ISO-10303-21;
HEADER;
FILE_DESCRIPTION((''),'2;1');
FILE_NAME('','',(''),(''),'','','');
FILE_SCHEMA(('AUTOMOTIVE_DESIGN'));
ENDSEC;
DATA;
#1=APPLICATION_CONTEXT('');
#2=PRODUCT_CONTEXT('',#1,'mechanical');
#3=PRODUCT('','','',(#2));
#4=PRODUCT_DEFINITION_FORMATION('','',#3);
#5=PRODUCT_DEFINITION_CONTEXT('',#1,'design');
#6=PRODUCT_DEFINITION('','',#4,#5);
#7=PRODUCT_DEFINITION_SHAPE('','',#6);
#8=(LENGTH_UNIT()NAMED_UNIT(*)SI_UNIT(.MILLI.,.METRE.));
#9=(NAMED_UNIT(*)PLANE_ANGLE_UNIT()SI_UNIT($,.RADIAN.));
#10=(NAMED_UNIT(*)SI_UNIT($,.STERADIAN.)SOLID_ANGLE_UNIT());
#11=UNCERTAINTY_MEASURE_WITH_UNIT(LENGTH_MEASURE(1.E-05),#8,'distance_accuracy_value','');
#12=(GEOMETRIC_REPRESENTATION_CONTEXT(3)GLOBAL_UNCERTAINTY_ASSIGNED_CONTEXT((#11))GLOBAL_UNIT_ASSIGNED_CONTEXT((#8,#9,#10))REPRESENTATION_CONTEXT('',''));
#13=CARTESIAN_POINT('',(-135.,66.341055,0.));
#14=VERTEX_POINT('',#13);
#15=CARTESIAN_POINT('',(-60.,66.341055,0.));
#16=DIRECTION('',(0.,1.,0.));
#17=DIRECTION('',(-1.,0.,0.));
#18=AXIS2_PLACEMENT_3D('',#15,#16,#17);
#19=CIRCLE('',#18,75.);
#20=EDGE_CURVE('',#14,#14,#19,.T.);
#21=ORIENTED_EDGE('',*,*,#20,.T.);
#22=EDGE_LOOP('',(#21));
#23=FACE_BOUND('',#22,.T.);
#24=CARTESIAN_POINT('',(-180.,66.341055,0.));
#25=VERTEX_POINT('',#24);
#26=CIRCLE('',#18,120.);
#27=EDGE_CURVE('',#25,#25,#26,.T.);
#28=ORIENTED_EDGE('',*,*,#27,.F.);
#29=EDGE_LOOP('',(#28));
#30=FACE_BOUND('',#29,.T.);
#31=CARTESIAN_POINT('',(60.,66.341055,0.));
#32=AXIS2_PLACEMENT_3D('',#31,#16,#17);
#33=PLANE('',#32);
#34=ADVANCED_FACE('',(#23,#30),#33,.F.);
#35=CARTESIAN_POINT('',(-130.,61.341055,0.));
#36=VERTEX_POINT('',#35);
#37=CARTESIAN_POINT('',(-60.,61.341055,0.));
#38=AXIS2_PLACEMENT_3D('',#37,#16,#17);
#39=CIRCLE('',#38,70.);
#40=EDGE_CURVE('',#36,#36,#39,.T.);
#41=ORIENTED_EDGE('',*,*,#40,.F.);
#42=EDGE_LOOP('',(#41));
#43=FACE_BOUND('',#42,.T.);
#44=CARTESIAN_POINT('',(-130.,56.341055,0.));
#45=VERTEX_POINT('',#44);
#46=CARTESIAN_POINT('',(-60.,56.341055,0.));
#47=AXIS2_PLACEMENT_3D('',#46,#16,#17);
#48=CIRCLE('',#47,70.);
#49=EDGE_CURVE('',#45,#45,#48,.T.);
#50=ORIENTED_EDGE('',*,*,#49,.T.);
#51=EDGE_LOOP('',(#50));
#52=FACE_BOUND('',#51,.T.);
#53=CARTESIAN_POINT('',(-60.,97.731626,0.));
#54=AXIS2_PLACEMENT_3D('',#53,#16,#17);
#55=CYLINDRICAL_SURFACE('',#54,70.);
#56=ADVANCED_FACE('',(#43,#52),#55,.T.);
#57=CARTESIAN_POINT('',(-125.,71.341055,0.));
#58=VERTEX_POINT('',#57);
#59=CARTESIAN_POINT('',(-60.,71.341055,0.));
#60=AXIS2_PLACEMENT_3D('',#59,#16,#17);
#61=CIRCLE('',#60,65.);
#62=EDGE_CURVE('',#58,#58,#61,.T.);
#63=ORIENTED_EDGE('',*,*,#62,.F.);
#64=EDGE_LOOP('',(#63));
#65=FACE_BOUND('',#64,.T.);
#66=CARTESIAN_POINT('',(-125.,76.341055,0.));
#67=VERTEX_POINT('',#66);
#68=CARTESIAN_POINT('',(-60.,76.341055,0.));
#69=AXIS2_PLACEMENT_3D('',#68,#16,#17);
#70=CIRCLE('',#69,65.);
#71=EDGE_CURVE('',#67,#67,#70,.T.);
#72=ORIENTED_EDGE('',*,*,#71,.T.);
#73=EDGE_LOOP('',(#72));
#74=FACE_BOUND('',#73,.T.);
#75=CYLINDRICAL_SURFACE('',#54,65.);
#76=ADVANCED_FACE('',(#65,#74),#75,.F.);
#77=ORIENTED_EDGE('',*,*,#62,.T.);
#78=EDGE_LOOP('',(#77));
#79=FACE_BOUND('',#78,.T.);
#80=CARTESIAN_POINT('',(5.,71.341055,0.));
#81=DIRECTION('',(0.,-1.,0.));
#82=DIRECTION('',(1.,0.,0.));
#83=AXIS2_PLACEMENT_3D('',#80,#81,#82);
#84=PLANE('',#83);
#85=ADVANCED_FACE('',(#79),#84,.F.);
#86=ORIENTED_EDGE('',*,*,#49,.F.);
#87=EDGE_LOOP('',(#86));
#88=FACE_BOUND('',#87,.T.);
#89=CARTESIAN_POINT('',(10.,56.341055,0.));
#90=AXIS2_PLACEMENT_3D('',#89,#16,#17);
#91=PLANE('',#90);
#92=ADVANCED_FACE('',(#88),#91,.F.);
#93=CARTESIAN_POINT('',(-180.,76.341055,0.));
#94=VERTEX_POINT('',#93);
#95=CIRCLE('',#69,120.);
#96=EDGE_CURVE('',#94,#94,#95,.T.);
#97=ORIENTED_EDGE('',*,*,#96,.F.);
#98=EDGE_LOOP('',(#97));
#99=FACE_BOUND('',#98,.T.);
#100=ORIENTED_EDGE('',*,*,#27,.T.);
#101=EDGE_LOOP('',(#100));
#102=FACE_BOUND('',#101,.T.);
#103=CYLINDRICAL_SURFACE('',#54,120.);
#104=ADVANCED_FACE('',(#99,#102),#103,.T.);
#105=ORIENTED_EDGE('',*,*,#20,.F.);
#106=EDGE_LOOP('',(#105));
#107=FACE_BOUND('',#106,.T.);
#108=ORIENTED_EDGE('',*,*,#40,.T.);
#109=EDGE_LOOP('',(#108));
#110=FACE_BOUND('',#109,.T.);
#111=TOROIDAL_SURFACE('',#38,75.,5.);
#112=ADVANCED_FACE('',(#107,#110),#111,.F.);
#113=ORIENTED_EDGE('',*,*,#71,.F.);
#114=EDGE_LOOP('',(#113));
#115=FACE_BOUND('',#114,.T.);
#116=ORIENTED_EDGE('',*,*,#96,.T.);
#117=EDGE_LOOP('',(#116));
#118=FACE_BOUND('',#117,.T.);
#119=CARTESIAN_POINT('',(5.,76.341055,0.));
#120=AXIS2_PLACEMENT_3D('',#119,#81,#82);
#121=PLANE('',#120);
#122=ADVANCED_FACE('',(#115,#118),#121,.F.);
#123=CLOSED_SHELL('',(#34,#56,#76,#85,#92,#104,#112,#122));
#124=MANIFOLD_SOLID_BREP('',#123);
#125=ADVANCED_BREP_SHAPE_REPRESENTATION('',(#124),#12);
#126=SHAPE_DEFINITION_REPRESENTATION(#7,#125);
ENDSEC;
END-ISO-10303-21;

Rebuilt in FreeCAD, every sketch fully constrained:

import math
import FreeCAD as App
import Part
import Sketcher
Q = App.Units.Quantity

doc = App.newDocument("Part")
body = doc.addObject("PartDesign::Body", "Body")

# Sketch on XY plane
sketch1 = body.newObject("Sketcher::SketchObject", "Sketch")
sketch1.AttachmentSupport = (doc.getObject("XY_Plane"), [""])
sketch1.MapMode = "FlatFace"
sketch1.addGeometry([
    Part.LineSegment(App.Vector(60, 76, 0), App.Vector(5, 76, 0)),  # 0
    Part.LineSegment(App.Vector(5, 76, 0), App.Vector(5, 71, 0)),  # 1
    Part.LineSegment(App.Vector(5, 71, 0), App.Vector(0, 71, 0)),  # 2
    Part.LineSegment(App.Vector(0, 71, 0), App.Vector(0, 56, 0)),  # 3
    Part.LineSegment(App.Vector(0, 56, 0), App.Vector(10, 56, 0)),  # 4
    Part.LineSegment(App.Vector(10, 56, 0), App.Vector(10, 61, 0)),  # 5
    Part.ArcOfCircle(Part.Circle(App.Vector(15, 61, 0), App.Vector(0, 0, 1), 5), math.radians(90), math.radians(180)),  # 6
    Part.LineSegment(App.Vector(15, 66, 0), App.Vector(60, 66, 0)),  # 7
    Part.LineSegment(App.Vector(60, 66, 0), App.Vector(60, 76, 0)),  # 8
], False)
sketch1.addGeometry(Part.LineSegment(App.Vector(-60, 76, 0), App.Vector(-60, 56, 0)), True)  # axis
sketch1.addConstraint([
    Sketcher.Constraint("Coincident", 0, 2, 1, 1),
    Sketcher.Constraint("Coincident", 1, 2, 2, 1),
    Sketcher.Constraint("Coincident", 2, 2, 3, 1),
    Sketcher.Constraint("Coincident", 3, 2, 4, 1),
    Sketcher.Constraint("Coincident", 4, 2, 5, 1),
    Sketcher.Constraint("Tangent", 5, 2, 6, 2),
    Sketcher.Constraint("Tangent", 6, 1, 7, 1),
    Sketcher.Constraint("Coincident", 7, 2, 8, 1),
    Sketcher.Constraint("Coincident", 8, 2, 0, 1),
    Sketcher.Constraint("Horizontal", 0),
    Sketcher.Constraint("Vertical", 1),
    Sketcher.Constraint("Horizontal", 2),
    Sketcher.Constraint("Vertical", 3),
    Sketcher.Constraint("Horizontal", 4),
    Sketcher.Constraint("Vertical", 5),
    Sketcher.Constraint("Horizontal", 7),
    Sketcher.Constraint("Vertical", 8),
    Sketcher.Constraint("Vertical", 9),
    Sketcher.Constraint("Symmetric", 8, 2, 9, 1, -2),
    Sketcher.Constraint("PointOnObject", 2, 2, -2),
    Sketcher.Constraint("Horizontal", 4, 2, 9, 2),
    Sketcher.Constraint("Equal", 2, 1),
    Sketcher.Constraint("Equal", 1, 5),
    Sketcher.Constraint("Equal", 4, 8),
    Sketcher.Constraint("Radius", 6, Q("5 mm")),
    Sketcher.Constraint("DistanceX", 0, 2, 0, 1, Q("55 mm")),
    Sketcher.Constraint("DistanceX", 2, 2, 2, 1, Q("5 mm")),
    Sketcher.Constraint("DistanceX", 4, 1, 4, 2, Q("10 mm")),
    Sketcher.Constraint("DistanceY", -1, 1, 6, 3, Q("61.341055 mm")),
])
revolution = body.newObject("PartDesign::Revolution", "Revolution")
revolution.Profile = sketch1
revolution.ReferenceAxis = (sketch1, ["Axis0"])
revolution.Angle = 360

# Sketch on XY plane
sketch2 = body.newObject("Sketcher::SketchObject", "Sketch001")
sketch2.AttachmentSupport = (doc.getObject("XY_Plane"), [""])
sketch2.MapMode = "FlatFace"
sketch2.addGeometry([
    Part.LineSegment(App.Vector(-60, 71, 0), App.Vector(-60, 56, 0)),
    Part.LineSegment(App.Vector(-60, 56, 0), App.Vector(0, 56, 0)),
    Part.LineSegment(App.Vector(0, 56, 0), App.Vector(0, 71, 0)),
    Part.LineSegment(App.Vector(0, 71, 0), App.Vector(-60, 71, 0)),
], False)
sketch2.addGeometry(Part.LineSegment(App.Vector(-60, 56, 0), App.Vector(-60, 71, 0)), True)  # axis
sketch2.addConstraint([
    Sketcher.Constraint("Coincident", 0, 2, 1, 1),
    Sketcher.Constraint("Coincident", 1, 2, 2, 1),
    Sketcher.Constraint("Coincident", 2, 2, 3, 1),
    Sketcher.Constraint("Coincident", 3, 2, 0, 1),
    Sketcher.Constraint("Vertical", 0),
    Sketcher.Constraint("Horizontal", 1),
    Sketcher.Constraint("Vertical", 2),
    Sketcher.Constraint("Horizontal", 3),
    Sketcher.Constraint("Vertical", 4),
    Sketcher.Constraint("Coincident", 4, 1, 0, 2),
    Sketcher.Constraint("PointOnObject", 1, 2, -2),
    Sketcher.Constraint("Horizontal", 2, 2, 4, 2),
    Sketcher.Constraint("DistanceX", 1, 1, 1, 2, Q("60 mm")),
    Sketcher.Constraint("DistanceY", 0, 2, 0, 1, Q("15 mm")),
    Sketcher.Constraint("DistanceY", -1, 1, 0, 2, Q("56.341055 mm")),
])
revolution2 = body.newObject("PartDesign::Revolution", "Revolution001")
revolution2.Profile = sketch2
revolution2.ReferenceAxis = (sketch2, ["Axis0"])
revolution2.Angle = 360

doc.recompute()
